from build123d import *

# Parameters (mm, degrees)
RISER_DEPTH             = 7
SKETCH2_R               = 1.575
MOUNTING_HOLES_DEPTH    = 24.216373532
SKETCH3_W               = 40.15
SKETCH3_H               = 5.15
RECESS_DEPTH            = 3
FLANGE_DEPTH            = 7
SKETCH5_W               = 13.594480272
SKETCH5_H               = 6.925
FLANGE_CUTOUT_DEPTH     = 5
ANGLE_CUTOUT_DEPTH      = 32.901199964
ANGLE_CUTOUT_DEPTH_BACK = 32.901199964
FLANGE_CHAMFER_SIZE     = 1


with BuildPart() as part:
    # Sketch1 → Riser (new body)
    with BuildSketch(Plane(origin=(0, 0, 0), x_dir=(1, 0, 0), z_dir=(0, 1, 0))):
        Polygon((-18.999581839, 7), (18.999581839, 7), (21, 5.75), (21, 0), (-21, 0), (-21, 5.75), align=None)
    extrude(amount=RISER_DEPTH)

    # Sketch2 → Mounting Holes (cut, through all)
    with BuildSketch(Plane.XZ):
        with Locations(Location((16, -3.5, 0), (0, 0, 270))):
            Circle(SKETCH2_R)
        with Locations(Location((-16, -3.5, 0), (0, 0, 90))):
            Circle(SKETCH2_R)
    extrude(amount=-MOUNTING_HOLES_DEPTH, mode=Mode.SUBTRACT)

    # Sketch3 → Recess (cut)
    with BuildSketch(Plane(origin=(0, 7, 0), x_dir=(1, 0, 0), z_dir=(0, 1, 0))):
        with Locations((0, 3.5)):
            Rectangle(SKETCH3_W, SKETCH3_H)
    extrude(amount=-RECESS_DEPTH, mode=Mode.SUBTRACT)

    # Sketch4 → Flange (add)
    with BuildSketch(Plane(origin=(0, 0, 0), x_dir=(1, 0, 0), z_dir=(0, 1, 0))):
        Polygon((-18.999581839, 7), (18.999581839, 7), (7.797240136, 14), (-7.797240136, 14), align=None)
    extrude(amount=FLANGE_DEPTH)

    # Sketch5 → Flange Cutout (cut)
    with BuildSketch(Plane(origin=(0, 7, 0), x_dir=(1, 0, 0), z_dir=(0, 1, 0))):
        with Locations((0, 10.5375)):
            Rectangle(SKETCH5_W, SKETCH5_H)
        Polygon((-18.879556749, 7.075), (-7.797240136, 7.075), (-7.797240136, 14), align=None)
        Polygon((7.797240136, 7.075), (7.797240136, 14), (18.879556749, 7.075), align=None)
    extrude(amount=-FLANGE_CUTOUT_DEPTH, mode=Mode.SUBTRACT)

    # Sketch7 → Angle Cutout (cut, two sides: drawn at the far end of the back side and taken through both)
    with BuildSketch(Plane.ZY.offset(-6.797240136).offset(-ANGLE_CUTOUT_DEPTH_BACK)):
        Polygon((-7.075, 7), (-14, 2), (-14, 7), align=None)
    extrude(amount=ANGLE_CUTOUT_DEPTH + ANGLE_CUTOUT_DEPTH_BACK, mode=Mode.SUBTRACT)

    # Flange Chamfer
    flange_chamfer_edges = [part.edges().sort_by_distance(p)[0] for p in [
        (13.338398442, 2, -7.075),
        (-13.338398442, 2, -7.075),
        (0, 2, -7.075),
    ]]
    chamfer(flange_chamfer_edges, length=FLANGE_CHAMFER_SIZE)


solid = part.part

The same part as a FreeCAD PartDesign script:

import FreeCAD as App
import Part
import Sketcher

V = App.Vector
Q = App.Units.Quantity


def edges_at(feature, points):
    """Names of the edges that pass closest to the given points."""
    edges = feature.Shape.Edges
    near = lambda p: min(range(len(edges)), key=lambda i: edges[i].distToShape(Part.Vertex(*p))[0])
    return sorted({f"Edge{near(p) + 1}" for p in points})

doc = App.newDocument("Part")
params = doc.addObject("Spreadsheet::Sheet", "Params")
for row, (alias, value) in enumerate([
    ("sketch1_width", "42 mm"),
    ("sketch1_height", "5.75 mm"),
    ("pad1_length", "7 mm"),
    ("sketch2_diameter", "3.15 mm"),
    ("sketch3_width", "40.15 mm"),
    ("sketch3_height", "5.15 mm"),
    ("pocket2_length", "3 mm"),
    ("pad2_length", "7 mm"),
    ("pocket3_length", "5 mm"),
    ("sketch6_width", "5 mm"),
    ("chamfer_size", "1 mm"),
], start=1):
    params.set(f"A{row}", alias)
    params.set(f"B{row}", "=" + value)
    params.setAlias(f"B{row}", alias)

body = doc.addObject("PartDesign::Body", "Body")

# Sketch on XZ plane
sketch1 = body.newObject("Sketcher::SketchObject", "Sketch")
sketch1.AttachmentSupport = (doc.getObject("XZ_Plane"), [""])
sketch1.MapMode = "FlatFace"
sketch1.addGeometry([
    Part.LineSegment(V(19, -7, 0), V(-19, -7, 0)),  # 0
    Part.LineSegment(V(-19, -7, 0), V(-21, -5.8, 0)),  # 1
    Part.LineSegment(V(-21, -5.8, 0), V(-21, 0, 0)),  # 2
    Part.LineSegment(V(-21, 0, 0), V(21, 0, 0)),  # 3
    Part.LineSegment(V(21, 0, 0), V(21, -5.8, 0)),  # 4
    Part.LineSegment(V(21, -5.8, 0), V(19, -7, 0)),  # 5
], False)
sketch1.addConstraint([
    Sketcher.Constraint("Coincident", 0, 2, 1, 1),
    Sketcher.Constraint("Coincident", 1, 2, 2, 1),
    Sketcher.Constraint("Coincident", 2, 2, 3, 1),
    Sketcher.Constraint("Coincident", 3, 2, 4, 1),
    Sketcher.Constraint("Coincident", 4, 2, 5, 1),
    Sketcher.Constraint("Coincident", 5, 2, 0, 1),
    Sketcher.Constraint("Horizontal", 0),
    Sketcher.Constraint("Vertical", 2),
    Sketcher.Constraint("Horizontal", 3),
    Sketcher.Constraint("Vertical", 4),
    Sketcher.Constraint("Symmetric", 2, 2, 3, 2, -1, 1),
    Sketcher.Constraint("Horizontal", 1, 2, 4, 2),
    Sketcher.Constraint("Equal", 1, 5),
    Sketcher.Constraint("DistanceX", 3, 1, 3, 2, 42.0),
    Sketcher.Constraint("Angle", 1, Q("148 deg")),
    Sketcher.Constraint("DistanceY", 0, 2, -1, 1, 7.0),
    Sketcher.Constraint("DistanceY", 2, 1, 2, 2, 5.75),
])
sketch1.setExpression("Constraints[13]", "Params.sketch1_width")
sketch1.setExpression("Constraints[16]", "Params.sketch1_height")
pad1 = body.newObject("PartDesign::Pad", "Pad")
pad1.Profile = sketch1
pad1.setExpression("Length", "Params.pad1_length")
pad1.Reversed = True

# Sketch on XZ plane
sketch2 = body.newObject("Sketcher::SketchObject", "Sketch001")
sketch2.AttachmentSupport = (doc.getObject("XZ_Plane"), [""])
sketch2.MapMode = "FlatFace"
sketch2.addGeometry([
    Part.Circle(V(16, -3.5, 0), V(0, 0, 1), 1.6),
    Part.Circle(V(-16, -3.5, 0), V(0, 0, 1), 1.6),
], False)
sketch2.addConstraint([
    Sketcher.Constraint("Equal", 0, 1),
    Sketcher.Constraint("Symmetric", 0, 3, 1, 3, -2),
    Sketcher.Constraint("Diameter", 0, 3.15),
    Sketcher.Constraint("DistanceX", -1, 1, 0, 3, 16.0),
    Sketcher.Constraint("DistanceY", 0, 3, -1, 1, 3.5),
])
sketch2.setExpression("Constraints[2]", "Params.sketch2_diameter")
pocket1 = body.newObject("PartDesign::Pocket", "Pocket")
pocket1.Profile = sketch2
pocket1.Type = "ThroughAll"

# Sketch on XZ plane
sketch3 = body.newObject("Sketcher::SketchObject", "Sketch002")
sketch3.AttachmentSupport = (doc.getObject("XZ_Plane"), [""])
sketch3.MapMode = "FlatFace"
sketch3.AttachmentOffset = App.Placement(V(0, 0, -7), App.Rotation())
sketch3.addGeometry([
    Part.LineSegment(V(-20, -6, 0), V(-20, -1, 0)),
    Part.LineSegment(V(-20, -1, 0), V(20, -1, 0)),
    Part.LineSegment(V(20, -1, 0), V(20, -6, 0)),
    Part.LineSegment(V(20, -6, 0), V(-20, -6, 0)),
], False)
sketch3.addConstraint([
    Sketcher.Constraint("Coincident", 0, 2, 1, 1),
    Sketcher.Constraint("Coincident", 1, 2, 2, 1),
    Sketcher.Constraint("Coincident", 2, 2, 3, 1),
    Sketcher.Constraint("Coincident", 3, 2, 0, 1),
    Sketcher.Constraint("Vertical", 0),
    Sketcher.Constraint("Horizontal", 1),
    Sketcher.Constraint("Vertical", 2),
    Sketcher.Constraint("Horizontal", 3),
    Sketcher.Constraint("DistanceX", 1, 1, 1, 2, 40.15),
    Sketcher.Constraint("DistanceY", 0, 1, 0, 2, 5.15),
    Sketcher.Constraint("DistanceX", 0, 2, -1, 1, 20.075),
    Sketcher.Constraint("DistanceY", 0, 2, -1, 1, 0.925),
])
sketch3.setExpression("Constraints[8]", "Params.sketch3_width")
sketch3.setExpression("Constraints[9]", "Params.sketch3_height")
pocket2 = body.newObject("PartDesign::Pocket", "Pocket001")
pocket2.Profile = sketch3
pocket2.setExpression("Length", "Params.pocket2_length")
pocket2.Reversed = True

# Sketch on XZ plane
sketch4 = body.newObject("Sketcher::SketchObject", "Sketch003")
sketch4.AttachmentSupport = (doc.getObject("XZ_Plane"), [""])
sketch4.MapMode = "FlatFace"
sketch4.addGeometry([
    Part.LineSegment(V(-19, -7, 0), V(19, -7, 0)),
    Part.LineSegment(V(19, -7, 0), V(8, -14, 0)),
    Part.LineSegment(V(8, -14, 0), V(-8, -14, 0)),
    Part.LineSegment(V(-8, -14, 0), V(-19, -7, 0)),
], False)
sketch4.addConstraint([
    Sketcher.Constraint("Coincident", 0, 2, 1, 1),
    Sketcher.Constraint("Coincident", 1, 2, 2, 1),
    Sketcher.Constraint("Coincident", 2, 2, 3, 1),
    Sketcher.Constraint("Coincident", 3, 2, 0, 1),
    Sketcher.Constraint("Horizontal", 0),
    Sketcher.Constraint("Horizontal", 2),
    Sketcher.Constraint("Equal", 1, 3),
    Sketcher.Constraint("Angle", 1, Q("-148 deg")),
    Sketcher.Constraint("DistanceY", 0, 2, -1, 1, 7.0),
    Sketcher.Constraint("DistanceY", 1, 2, -1, 1, 14.0),
    Sketcher.Constraint("DistanceX", 2, 2, 2, 1, 15.59448),
    Sketcher.Constraint("DistanceX", -1, 1, 0, 2, 18.999582),
])
pad2 = body.newObject("PartDesign::Pad", "Pad001")
pad2.Profile = sketch4
pad2.setExpression("Length", "Params.pad2_length")
pad2.Reversed = True

# Sketch on XZ plane
sketch5 = body.newObject("Sketcher::SketchObject", "Sketch004")
sketch5.AttachmentSupport = (doc.getObject("XZ_Plane"), [""])
sketch5.MapMode = "FlatFace"
sketch5.AttachmentOffset = App.Placement(V(0, 0, -7), App.Rotation())
sketch5.addGeometry([
    Part.LineSegment(V(-7, -14, 0), V(-7, -7, 0)),  # 0
    Part.LineSegment(V(-7, -7, 0), V(7, -7, 0)),  # 1
    Part.LineSegment(V(7, -7, 0), V(7, -14, 0)),  # 2
    Part.LineSegment(V(7, -14, 0), V(-7, -14, 0)),  # 3
    Part.LineSegment(V(-19, -7, 0), V(-8, -7, 0)),  # 4
    Part.LineSegment(V(-8, -7, 0), V(-8, -14, 0)),  # 5
    Part.LineSegment(V(-8, -14, 0), V(-19, -7, 0)),  # 6
    Part.LineSegment(V(8, -14, 0), V(8, -7, 0)),  # 7
    Part.LineSegment(V(8, -7, 0), V(19, -7, 0)),  # 8
    Part.LineSegment(V(19, -7, 0), V(8, -14, 0)),  # 9
], False)
sketch5.addConstraint([
    Sketcher.Constraint("Coincident", 0, 2, 1, 1),
    Sketcher.Constraint("Coincident", 1, 2, 2, 1),
    Sketcher.Constraint("Coincident", 2, 2, 3, 1),
    Sketcher.Constraint("Coincident", 3, 2, 0, 1),
    Sketcher.Constraint("Coincident", 4, 2, 5, 1),
    Sketcher.Constraint("Coincident", 5, 2, 6, 1),
    Sketcher.Constraint("Coincident", 6, 2, 4, 1),
    Sketcher.Constraint("Coincident", 7, 2, 8, 1),
    Sketcher.Constraint("Coincident", 8, 2, 9, 1),
    Sketcher.Constraint("Coincident", 9, 2, 7, 1),
    Sketcher.Constraint("Vertical", 0),
    Sketcher.Constraint("Horizontal", 1),
    Sketcher.Constraint("Vertical", 2),
    Sketcher.Constraint("Horizontal", 3),
    Sketcher.Constraint("Horizontal", 4),
    Sketcher.Constraint("Vertical", 5),
    Sketcher.Constraint("Vertical", 7),
    Sketcher.Constraint("Horizontal", 8),
    Sketcher.Constraint("Symmetric", 4, 2, 7, 2, -2),
    Sketcher.Constraint("Horizontal", 1, 2, 4, 2),
    Sketcher.Constraint("Horizontal", 3, 2, 5, 2),
    Sketcher.Constraint("Horizontal", 5, 2, 9, 2),
    Sketcher.Constraint("Equal", 4, 8),
    Sketcher.Constraint("Angle", 6, Q("148 deg")),
    Sketcher.Constraint("DistanceY", 2, 2, -1, 1, 14.0),
    Sketcher.Constraint("DistanceX", 4, 2, 0, 2, 1.0),
    Sketcher.Constraint("DistanceX", 1, 2, 7, 2, 1.0),
    Sketcher.Constraint("DistanceY", 0, 1, 0, 2, 6.925),
    Sketcher.Constraint("DistanceX", 1, 1, 1, 2, 13.59448),
])
pocket3 = body.newObject("PartDesign::Pocket", "Pocket002")
pocket3.Profile = sketch5
pocket3.setExpression("Length", "Params.pocket3_length")
pocket3.Reversed = True

# Sketch on YZ plane
sketch6 = body.newObject("Sketcher::SketchObject", "Sketch005")
sketch6.AttachmentSupport = (doc.getObject("YZ_Plane"), [""])
sketch6.MapMode = "FlatFace"
sketch6.AttachmentOffset = App.Placement(V(0, 0, 6.79724), App.Rotation())
sketch6.addGeometry([
    Part.LineSegment(V(2, -14, 0), V(7, -7, 0)),
    Part.LineSegment(V(7, -7, 0), V(7, -14, 0)),
    Part.LineSegment(V(7, -14, 0), V(2, -14, 0)),
], False)
sketch6.addConstraint([
    Sketcher.Constraint("Coincident", 0, 2, 1, 1),
    Sketcher.Constraint("Coincident", 1, 2, 2, 1),
    Sketcher.Constraint("Coincident", 2, 2, 0, 1),
    Sketcher.Constraint("Vertical", 1),
    Sketcher.Constraint("Horizontal", 2),
    Sketcher.Constraint("DistanceX", 2, 2, 2, 1, 5.0),
    Sketcher.Constraint("DistanceX", -1, 1, 0, 2, 7.0),
    Sketcher.Constraint("DistanceY", 1, 2, -1, 1, 14.0),
    Sketcher.Constraint("DistanceY", 1, 2, 1, 1, 6.925),
])
sketch6.setExpression("Constraints[5]", "Params.sketch6_width")
pocket4 = body.newObject("PartDesign::Pocket", "Pocket003")
pocket4.Profile = sketch6
pocket4.Type = "ThroughAll"
pocket4.Midplane = True
doc.recompute()

chamfer = body.newObject("PartDesign::Chamfer", "Chamfer")
chamfer.Base = (pocket4, edges_at(pocket4, [(13.338, 2, -7.075), (-13.338, 2, -7.075), (0, 2, -7.075)]))
chamfer.setExpression("Size", "Params.chamfer_size")

doc.recompute()
